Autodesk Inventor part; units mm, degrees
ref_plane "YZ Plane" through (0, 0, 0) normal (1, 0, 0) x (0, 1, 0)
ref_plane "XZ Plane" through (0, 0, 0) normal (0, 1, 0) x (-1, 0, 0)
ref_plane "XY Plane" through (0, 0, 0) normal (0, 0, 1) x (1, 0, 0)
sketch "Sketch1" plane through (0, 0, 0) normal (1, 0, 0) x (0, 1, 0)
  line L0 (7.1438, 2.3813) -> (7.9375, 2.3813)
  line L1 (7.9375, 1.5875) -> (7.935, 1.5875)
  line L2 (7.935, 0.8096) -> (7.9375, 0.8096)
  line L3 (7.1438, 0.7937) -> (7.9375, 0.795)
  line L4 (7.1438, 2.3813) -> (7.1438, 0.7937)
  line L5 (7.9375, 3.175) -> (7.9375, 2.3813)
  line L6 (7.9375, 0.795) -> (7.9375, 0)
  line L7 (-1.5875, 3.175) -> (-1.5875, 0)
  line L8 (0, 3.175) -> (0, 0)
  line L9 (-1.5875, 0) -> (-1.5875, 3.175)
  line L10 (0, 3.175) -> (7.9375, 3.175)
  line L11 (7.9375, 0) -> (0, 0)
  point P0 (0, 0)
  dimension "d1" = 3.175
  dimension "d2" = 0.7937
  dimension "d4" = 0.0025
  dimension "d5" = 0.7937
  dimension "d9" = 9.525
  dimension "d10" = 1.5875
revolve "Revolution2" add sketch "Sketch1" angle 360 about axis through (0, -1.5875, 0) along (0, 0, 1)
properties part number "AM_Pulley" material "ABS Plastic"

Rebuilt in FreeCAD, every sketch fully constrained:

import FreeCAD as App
import Part
import Sketcher

V = App.Vector
Q = App.Units.Quantity


def add_polygon(sketch, points):
    """Adds a closed chain of lines whose ends are joined by coincident constraints."""
    first, n = sketch.GeometryCount, len(points)
    for a, b in zip(points, points[1:] + points[:1]):
        sketch.addGeometry(Part.LineSegment(App.Vector(*a, 0), App.Vector(*b, 0)), False)
    for i in range(n):
        sketch.addConstraint(Sketcher.Constraint("Coincident", first + i, 2, first + (i + 1) % n, 1))

doc = App.newDocument("Part")
body = doc.addObject("PartDesign::Body", "Body")

# Sketch on YZ plane
sketch1 = body.newObject("Sketcher::SketchObject", "Sketch")
sketch1.AttachmentSupport = (doc.getObject("YZ_Plane"), [""])
sketch1.MapMode = "FlatFace"
add_polygon(sketch1, [(7.1, 0.8), (7.1, 2.4), (7.9, 2.4), (7.9, 3.2), (0, 3.2), (0, 0), (7.9, 0), (7.9, 0.8)])  # lines 0-7
sketch1.addGeometry(Part.LineSegment(V(-1.6, 0, 0), V(-1.6, 3.2, 0)), True)  # axis
sketch1.addConstraint([
    Sketcher.Constraint("Vertical", 0),
    Sketcher.Constraint("Horizontal", 1),
    Sketcher.Constraint("Vertical", 2),
    Sketcher.Constraint("Horizontal", 3),
    Sketcher.Constraint("Vertical", 4),
    Sketcher.Constraint("Horizontal", 5),
    Sketcher.Constraint("Vertical", 6),
    Sketcher.Constraint("Vertical", 8),
    Sketcher.Constraint("Coincident", 4, 2, -1, 1),
    Sketcher.Constraint("PointOnObject", 8, 1, -1),
    Sketcher.Constraint("Horizontal", 3, 2, 8, 2),
    Sketcher.Constraint("Vertical", 2, 2, 5, 2),
    Sketcher.Constraint("Equal", 1, 2),
    Sketcher.Constraint("DistanceX", 1, 1, 1, 2, Q("0.031248 in")),
    Sketcher.Constraint("DistanceY", 0, 1, 0, 2, Q("0.0625 in")),
    Sketcher.Constraint("DistanceY", 4, 2, 4, 1, Q("0.125 in")),
    Sketcher.Constraint("DistanceX", 8, 1, -1, 1, Q("0.0625 in")),
    Sketcher.Constraint("DistanceX", 8, 1, 5, 2, Q("0.375 in")),
    Sketcher.Constraint("DistanceY", 6, 1, 6, 2, Q("0.0313 in")),
])
revolution = body.newObject("PartDesign::Revolution", "Revolution")
revolution.Profile = sketch1
revolution.ReferenceAxis = (sketch1, ["Axis0"])
revolution.Angle = 360

doc.recompute()
